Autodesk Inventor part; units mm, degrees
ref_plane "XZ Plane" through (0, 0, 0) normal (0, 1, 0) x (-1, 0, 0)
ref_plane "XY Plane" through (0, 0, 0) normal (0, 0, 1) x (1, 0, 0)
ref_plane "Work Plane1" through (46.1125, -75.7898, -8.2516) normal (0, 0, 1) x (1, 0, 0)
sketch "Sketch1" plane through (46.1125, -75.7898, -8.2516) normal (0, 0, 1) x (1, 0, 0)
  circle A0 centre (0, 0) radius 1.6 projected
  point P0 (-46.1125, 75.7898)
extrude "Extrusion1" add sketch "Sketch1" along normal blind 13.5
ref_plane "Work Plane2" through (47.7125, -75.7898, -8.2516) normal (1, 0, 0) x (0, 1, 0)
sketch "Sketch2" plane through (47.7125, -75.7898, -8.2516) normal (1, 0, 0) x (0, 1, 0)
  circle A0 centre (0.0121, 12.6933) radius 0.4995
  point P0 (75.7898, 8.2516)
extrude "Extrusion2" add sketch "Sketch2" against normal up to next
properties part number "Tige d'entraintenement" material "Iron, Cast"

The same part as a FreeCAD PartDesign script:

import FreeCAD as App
import Part
import Sketcher

doc = App.newDocument("Part")
body = doc.addObject("PartDesign::Body", "Body")

# Sketch on XY plane
sketch1 = body.newObject("Sketcher::SketchObject", "Sketch")
sketch1.AttachmentSupport = (doc.getObject("XY_Plane"), [""])
sketch1.MapMode = "FlatFace"
sketch1.AttachmentOffset = App.Placement(App.Vector(0, 0, -8.2516), App.Rotation())
sketch1.addGeometry(Part.Circle(App.Vector(46.1, -75.8, 0), App.Vector(0, 0, 1), 1.6), False)
sketch1.addConstraint(Sketcher.Constraint("Diameter", 0, 3.2))
sketch1.addConstraint(Sketcher.Constraint("DistanceX", -1, 1, 0, 3, 46.1125))
sketch1.addConstraint(Sketcher.Constraint("DistanceY", 0, 3, -1, 1, 75.7898))
pad1 = body.newObject("PartDesign::Pad", "Pad")
pad1.Profile = sketch1
pad1.Length = 13.5

# Sketch on YZ plane
sketch2 = body.newObject("Sketcher::SketchObject", "Sketch001")
sketch2.AttachmentSupport = (doc.getObject("YZ_Plane"), [""])
sketch2.MapMode = "FlatFace"
sketch2.AttachmentOffset = App.Placement(App.Vector(0, 0, 47.7125), App.Rotation())
sketch2.addGeometry(Part.Circle(App.Vector(-75.78, 4.44, 0), App.Vector(0, 0, 1), 0.5), False)
sketch2.addConstraint(Sketcher.Constraint("Diameter", 0, 0.999))
sketch2.addConstraint(Sketcher.Constraint("DistanceX", 0, 3, -1, 1, 75.7777))
sketch2.addConstraint(Sketcher.Constraint("DistanceY", -1, 1, 0, 3, 4.4417))
pad2 = body.newObject("PartDesign::Pad", "Pad001")
pad2.Profile = sketch2
pad2.Length = 0.084
pad2.Reversed = True

doc.recompute()
